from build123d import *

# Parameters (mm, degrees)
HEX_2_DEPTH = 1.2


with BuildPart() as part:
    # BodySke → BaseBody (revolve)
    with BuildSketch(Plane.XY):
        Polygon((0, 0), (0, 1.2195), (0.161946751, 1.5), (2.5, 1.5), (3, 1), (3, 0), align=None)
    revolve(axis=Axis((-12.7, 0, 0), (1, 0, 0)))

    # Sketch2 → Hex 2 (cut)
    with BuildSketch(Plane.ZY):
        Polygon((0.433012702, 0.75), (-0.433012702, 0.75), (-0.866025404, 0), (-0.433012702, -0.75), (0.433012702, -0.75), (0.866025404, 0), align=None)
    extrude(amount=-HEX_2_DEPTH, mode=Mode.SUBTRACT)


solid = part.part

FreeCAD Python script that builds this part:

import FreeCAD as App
import Part
import Sketcher

V = App.Vector
Q = App.Units.Quantity


def add_polygon(sketch, points):
    """Adds a closed chain of lines whose ends are joined by coincident constraints."""
    first, n = sketch.GeometryCount, len(points)
    for a, b in zip(points, points[1:] + points[:1]):
        sketch.addGeometry(Part.LineSegment(App.Vector(*a, 0), App.Vector(*b, 0)), False)
    for i in range(n):
        sketch.addConstraint(Sketcher.Constraint("Coincident", first + i, 2, first + (i + 1) % n, 1))

doc = App.newDocument("Part")
params = doc.addObject("Spreadsheet::Sheet", "Params")
for row, (alias, value) in enumerate([
    ("sketch1_width", "3 mm"),
    ("sketch1_height", "1 mm"),
    ("revolution_angle", "360 deg"),
    ("pocket1_length", "1.2 mm"),
], start=1):
    params.set(f"A{row}", alias)
    params.set(f"B{row}", "=" + value)
    params.setAlias(f"B{row}", alias)

body = doc.addObject("PartDesign::Body", "Body")

sketch1 = body.newObject("Sketcher::SketchObject", "Sketch")
sketch1.AttachmentSupport = (doc.getObject("XY_Plane"), [""])
sketch1.MapMode = "FlatFace"
add_polygon(sketch1, [(0, 1.22), (0, 0), (3, 0), (3, 1), (2.5, 1.5), (0.16, 1.5)])
sketch1.addConstraint(Sketcher.Constraint("Vertical", 0))
sketch1.addConstraint(Sketcher.Constraint("Horizontal", 1))
sketch1.addConstraint(Sketcher.Constraint("Vertical", 2))
sketch1.addConstraint(Sketcher.Constraint("Horizontal", 4))
sketch1.addConstraint(Sketcher.Constraint("Coincident", 0, 2, -1, 1))
sketch1.addConstraint(Sketcher.Constraint("DistanceX", 1, 1, 1, 2, Q("3 mm")))
sketch1.addConstraint(Sketcher.Constraint("DistanceY", 2, 1, 2, 2, Q("1 mm")))
sketch1.addConstraint(Sketcher.Constraint("Angle", 3, Q("135 deg")))
sketch1.addConstraint(Sketcher.Constraint("Angle", 5, Q("-120 deg")))
sketch1.addConstraint(Sketcher.Constraint("DistanceX", -1, 1, 3, 2, Q("2.5 mm")))
sketch1.addConstraint(Sketcher.Constraint("DistanceY", 0, 2, 0, 1, Q("1.2195 mm")))
sketch1.setExpression("Constraints[11]", "Params.sketch1_width")
sketch1.setExpression("Constraints[12]", "Params.sketch1_height")
revolution = body.newObject("PartDesign::Revolution", "Revolution")
revolution.Profile = sketch1
revolution.ReferenceAxis = (sketch1, ["H_Axis"])
revolution.setExpression("Angle", "Params.revolution_angle")

sketch2 = body.newObject("Sketcher::SketchObject", "Sketch001")
sketch2.AttachmentSupport = (doc.getObject("YZ_Plane"), [""])
sketch2.MapMode = "FlatFace"
add_polygon(sketch2, [(0.8, 0.4), (0.8, -0.4), (0, -0.9), (-0.8, -0.4), (-0.8, 0.4), (0, 0.9)])
sketch2.addConstraint(Sketcher.Constraint("Vertical", 0))
sketch2.addConstraint(Sketcher.Constraint("Vertical", 3))
sketch2.addConstraint(Sketcher.Constraint("Symmetric", 0, 2, 3, 2, -1, 1))
sketch2.addConstraint(Sketcher.Constraint("Symmetric", 1, 2, 4, 2, -1, 1))
sketch2.addConstraint(Sketcher.Constraint("PointOnObject", 1, 2, -2))
sketch2.addConstraint(Sketcher.Constraint("Parallel", 2, 5))
sketch2.addConstraint(Sketcher.Constraint("Horizontal", 0, 2, 2, 2))
sketch2.addConstraint(Sketcher.Constraint("Angle", 1, Q("-150 deg")))
sketch2.addConstraint(Sketcher.Constraint("DistanceX", 2, 2, 0, 2, Q("1.5 mm")))
sketch2.addConstraint(Sketcher.Constraint("DistanceY", 0, 2, 0, 1, Q("0.866025 mm")))
pocket1 = body.newObject("PartDesign::Pocket", "Pocket")
pocket1.Profile = sketch2
pocket1.setExpression("Length", "Params.pocket1_length")
pocket1.Reversed = True

doc.recompute()
